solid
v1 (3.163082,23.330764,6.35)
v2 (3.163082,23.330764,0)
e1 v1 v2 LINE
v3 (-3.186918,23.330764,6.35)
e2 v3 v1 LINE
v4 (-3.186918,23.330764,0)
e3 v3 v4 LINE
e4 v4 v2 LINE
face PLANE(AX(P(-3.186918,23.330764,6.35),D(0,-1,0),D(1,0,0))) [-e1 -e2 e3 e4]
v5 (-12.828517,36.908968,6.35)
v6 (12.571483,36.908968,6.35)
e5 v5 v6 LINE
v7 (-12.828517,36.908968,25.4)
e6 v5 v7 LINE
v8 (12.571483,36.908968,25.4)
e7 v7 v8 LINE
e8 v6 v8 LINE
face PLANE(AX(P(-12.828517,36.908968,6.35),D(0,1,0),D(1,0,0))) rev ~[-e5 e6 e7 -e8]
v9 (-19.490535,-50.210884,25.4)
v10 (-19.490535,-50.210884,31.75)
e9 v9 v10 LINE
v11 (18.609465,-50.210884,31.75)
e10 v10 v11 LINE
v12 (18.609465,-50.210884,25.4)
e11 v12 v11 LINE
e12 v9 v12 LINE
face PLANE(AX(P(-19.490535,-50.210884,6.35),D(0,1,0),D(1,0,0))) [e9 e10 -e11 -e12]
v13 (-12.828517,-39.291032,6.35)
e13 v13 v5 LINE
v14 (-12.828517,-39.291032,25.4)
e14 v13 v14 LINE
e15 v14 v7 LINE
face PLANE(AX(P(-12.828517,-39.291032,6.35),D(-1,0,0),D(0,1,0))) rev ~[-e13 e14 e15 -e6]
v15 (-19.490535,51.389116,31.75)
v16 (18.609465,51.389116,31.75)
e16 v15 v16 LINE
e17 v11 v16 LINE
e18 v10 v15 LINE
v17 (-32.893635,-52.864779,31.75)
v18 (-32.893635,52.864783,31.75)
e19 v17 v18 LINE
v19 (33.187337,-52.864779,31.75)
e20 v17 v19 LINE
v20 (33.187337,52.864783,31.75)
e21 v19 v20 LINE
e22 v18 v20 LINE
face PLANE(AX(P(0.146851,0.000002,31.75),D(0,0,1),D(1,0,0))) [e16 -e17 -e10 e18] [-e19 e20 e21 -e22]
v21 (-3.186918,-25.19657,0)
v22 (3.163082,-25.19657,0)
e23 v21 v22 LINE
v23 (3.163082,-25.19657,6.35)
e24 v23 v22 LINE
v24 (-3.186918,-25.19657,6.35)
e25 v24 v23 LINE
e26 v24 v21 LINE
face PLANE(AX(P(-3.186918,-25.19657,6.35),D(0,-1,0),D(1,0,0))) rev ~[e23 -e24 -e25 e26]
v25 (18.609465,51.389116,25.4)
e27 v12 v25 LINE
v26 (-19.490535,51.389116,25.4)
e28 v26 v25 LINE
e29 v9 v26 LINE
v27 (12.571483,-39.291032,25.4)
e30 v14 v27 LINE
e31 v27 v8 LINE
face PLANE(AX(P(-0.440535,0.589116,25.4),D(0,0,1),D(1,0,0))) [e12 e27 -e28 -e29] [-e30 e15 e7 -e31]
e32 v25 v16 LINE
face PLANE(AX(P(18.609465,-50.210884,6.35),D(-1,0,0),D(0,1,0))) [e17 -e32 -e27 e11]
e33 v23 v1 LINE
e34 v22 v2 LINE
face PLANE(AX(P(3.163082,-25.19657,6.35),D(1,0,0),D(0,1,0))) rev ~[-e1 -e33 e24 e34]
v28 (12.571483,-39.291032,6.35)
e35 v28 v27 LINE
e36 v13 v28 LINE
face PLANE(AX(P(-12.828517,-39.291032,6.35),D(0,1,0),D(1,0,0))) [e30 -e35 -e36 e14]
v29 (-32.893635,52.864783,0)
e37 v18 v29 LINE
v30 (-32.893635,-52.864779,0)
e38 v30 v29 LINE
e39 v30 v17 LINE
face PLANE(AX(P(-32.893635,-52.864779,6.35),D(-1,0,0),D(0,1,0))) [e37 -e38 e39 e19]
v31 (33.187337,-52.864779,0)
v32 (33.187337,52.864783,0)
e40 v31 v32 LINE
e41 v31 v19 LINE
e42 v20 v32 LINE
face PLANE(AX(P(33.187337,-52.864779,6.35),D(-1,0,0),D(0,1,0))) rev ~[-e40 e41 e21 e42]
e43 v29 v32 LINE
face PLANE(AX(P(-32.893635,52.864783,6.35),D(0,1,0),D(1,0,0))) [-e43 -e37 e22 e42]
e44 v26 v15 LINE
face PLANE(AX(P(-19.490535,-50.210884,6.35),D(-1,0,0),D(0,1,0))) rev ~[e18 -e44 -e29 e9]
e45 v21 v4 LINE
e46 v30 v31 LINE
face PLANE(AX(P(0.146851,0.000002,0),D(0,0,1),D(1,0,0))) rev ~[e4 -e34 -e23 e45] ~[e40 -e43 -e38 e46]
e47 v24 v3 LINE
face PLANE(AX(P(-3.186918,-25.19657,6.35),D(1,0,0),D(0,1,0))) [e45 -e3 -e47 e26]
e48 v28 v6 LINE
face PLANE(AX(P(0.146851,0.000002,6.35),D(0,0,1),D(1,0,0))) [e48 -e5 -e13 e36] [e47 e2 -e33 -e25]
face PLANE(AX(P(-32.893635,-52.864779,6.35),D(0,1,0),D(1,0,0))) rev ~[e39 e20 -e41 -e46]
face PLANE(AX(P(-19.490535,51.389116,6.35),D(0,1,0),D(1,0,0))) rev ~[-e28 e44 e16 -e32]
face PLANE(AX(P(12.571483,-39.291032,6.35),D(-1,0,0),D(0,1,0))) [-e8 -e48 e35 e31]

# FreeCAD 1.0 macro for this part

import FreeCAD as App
import Part
import Sketcher
from FreeCAD import Vector
Q = App.Units.Quantity


def add_polygon(sketch, points):
    """Adds a closed chain of lines whose ends are joined by coincident constraints."""
    first, n = sketch.GeometryCount, len(points)
    for a, b in zip(points, points[1:] + points[:1]):
        sketch.addGeometry(Part.LineSegment(App.Vector(*a, 0), App.Vector(*b, 0)), False)
    for i in range(n):
        sketch.addConstraint(Sketcher.Constraint("Coincident", first + i, 2, first + (i + 1) % n, 1))

doc = App.newDocument("Part")
params = doc.addObject("Spreadsheet::Sheet", "Params")
for row, (alias, value) in enumerate([
    ("pad1_length", "0.25 in"),
    ("sketch2_height", "4 in"),
    ("sketch2_width", "1.5 in"),
    ("pad2_length", "1 in"),
    ("sketch3_width", "1 in"),
    ("sketch3_height", "4 in"),
    ("sketch3_height2", "3 in"),
    ("sketch3_width2", "1.5 in"),
    ("pad3_length", "0.75 in"),
    ("sketch4_width", "0.25 in"),
], start=1):
    params.set(f"A{row}", alias)
    params.set(f"B{row}", "=" + value)
    params.setAlias(f"B{row}", alias)

body = doc.addObject("PartDesign::Body", "Body")

# Sketch on XY plane
sketch1 = doc.addObject("Sketcher::SketchObject", "Sketch")
body.addObject(sketch1)
sketch1.AttachmentSupport = (doc.XY_Plane, [""])
sketch1.MapMode = "FlatFace"
add_polygon(sketch1, [(-33, 53), (-33, -53), (33, -53), (33, 53)])  # lines 0-3
sketch1.addConstraint([
    Sketcher.Constraint("Vertical", 0),
    Sketcher.Constraint("Horizontal", 1),
    Sketcher.Constraint("Vertical", 2),
    Sketcher.Constraint("Horizontal", 3),
    Sketcher.Constraint("DistanceY", 0, 2, 0, 1, 105.729562),
    Sketcher.Constraint("DistanceX", 1, 1, 1, 2, 66.080972),
    Sketcher.Constraint("DistanceY", 0, 2, -1, 1, 52.864779),
    Sketcher.Constraint("DistanceX", 0, 2, -1, 1, 32.893635),
])
pad1 = doc.addObject("PartDesign::Pad", "Pad")
body.addObject(pad1)
pad1.Profile = sketch1
pad1.setExpression("Length", "Params.pad1_length")

# Sketch on XY plane
sketch2 = doc.addObject("Sketcher::SketchObject", "Sketch001")
body.addObject(sketch2)
sketch2.AttachmentSupport = (doc.XY_Plane, [""])
sketch2.MapMode = "FlatFace"
sketch2.AttachmentOffset = App.Placement(Vector(0, 0, 0.25 * 25.4), App.Rotation())
add_polygon(sketch2, [(-33, 53), (-33, -53), (33, -53), (33, 53)])  # lines 0-3
add_polygon(sketch2, [(19, -50), (-19, -50), (-19, 51), (19, 51)])  # lines 4-7
sketch2.addConstraint([
    Sketcher.Constraint("Vertical", 0),
    Sketcher.Constraint("Horizontal", 1),
    Sketcher.Constraint("Vertical", 2),
    Sketcher.Constraint("Horizontal", 3),
    Sketcher.Constraint("Horizontal", 4),
    Sketcher.Constraint("Vertical", 5),
    Sketcher.Constraint("Horizontal", 6),
    Sketcher.Constraint("Vertical", 7),
    Sketcher.Constraint("DistanceY", 5, 1, 5, 2, Q("4 in")),
    Sketcher.Constraint("DistanceX", 4, 2, 4, 1, Q("1.5 in")),
    Sketcher.Constraint("DistanceY", 0, 2, 0, 1, 105.729562),
    Sketcher.Constraint("DistanceX", 0, 2, 4, 2, 13.4031),
    Sketcher.Constraint("DistanceX", 1, 1, 1, 2, 66.080972),
    Sketcher.Constraint("DistanceY", 0, 2, -1, 1, 52.864779),
    Sketcher.Constraint("DistanceX", 0, 2, -1, 1, 32.893635),
    Sketcher.Constraint("DistanceY", 4, 2, -1, 1, 50.210884),
])
sketch2.setExpression("Constraints[16]", "Params.sketch2_height")
sketch2.setExpression("Constraints[17]", "Params.sketch2_width")
pad2 = doc.addObject("PartDesign::Pad", "Pad001")
body.addObject(pad2)
pad2.Profile = sketch2
pad2.setExpression("Length", "Params.pad2_length")

# Sketch on XY plane
sketch3 = doc.addObject("Sketcher::SketchObject", "Sketch002")
body.addObject(sketch3)
sketch3.AttachmentSupport = (doc.XY_Plane, [""])
sketch3.MapMode = "FlatFace"
sketch3.AttachmentOffset = App.Placement(Vector(0, 0, 0.25 * 25.4), App.Rotation())
add_polygon(sketch3, [(-19, 51), (-19, -50), (19, -50), (19, 51)])  # lines 0-3
add_polygon(sketch3, [(13, -39), (-13, -39), (-13, 37), (13, 37)])  # lines 4-7
sketch3.addConstraint([
    Sketcher.Constraint("Vertical", 0),
    Sketcher.Constraint("Horizontal", 1),
    Sketcher.Constraint("Vertical", 2),
    Sketcher.Constraint("Horizontal", 3),
    Sketcher.Constraint("Horizontal", 4),
    Sketcher.Constraint("Vertical", 5),
    Sketcher.Constraint("Horizontal", 6),
    Sketcher.Constraint("Vertical", 7),
    Sketcher.Constraint("DistanceX", 4, 2, 4, 1, Q("1 in")),
    Sketcher.Constraint("DistanceY", 0, 2, 0, 1, Q("4 in")),
    Sketcher.Constraint("DistanceY", 5, 1, 5, 2, Q("3 in")),
    Sketcher.Constraint("DistanceX", 1, 1, 1, 2, Q("1.5 in")),
    Sketcher.Constraint("DistanceY", -1, 1, 5, 2, 36.908968),
    Sketcher.Constraint("DistanceX", 0, 2, 4, 2, 6.662018),
    Sketcher.Constraint("DistanceY", 0, 2, 4, 2, 10.919852),
    Sketcher.Constraint("DistanceX", 0, 2, -1, 1, 19.490535),
])
sketch3.setExpression("Constraints[16]", "Params.sketch3_width")
sketch3.setExpression("Constraints[17]", "Params.sketch3_height")
sketch3.setExpression("Constraints[18]", "Params.sketch3_height2")
sketch3.setExpression("Constraints[19]", "Params.sketch3_width2")
pad3 = doc.addObject("PartDesign::Pad", "Pad002")
body.addObject(pad3)
pad3.Profile = sketch3
pad3.setExpression("Length", "Params.pad3_length")

# Sketch on XY plane
sketch4 = doc.addObject("Sketcher::SketchObject", "Sketch003")
body.addObject(sketch4)
sketch4.AttachmentSupport = (doc.XY_Plane, [""])
sketch4.MapMode = "FlatFace"
sketch4.AttachmentOffset = App.Placement(Vector(0, 0, 0.25 * 25.4), App.Rotation())
add_polygon(sketch4, [(-3, 23), (-3, -25), (3, -25), (3, 23)])  # lines 0-3
sketch4.addConstraint([
    Sketcher.Constraint("Vertical", 0),
    Sketcher.Constraint("Horizontal", 1),
    Sketcher.Constraint("Vertical", 2),
    Sketcher.Constraint("Horizontal", 3),
    Sketcher.Constraint("DistanceX", 1, 1, 1, 2, Q("0.25 in")),
    Sketcher.Constraint("DistanceY", 0, 2, 0, 1, 48.527334),
    Sketcher.Constraint("DistanceY", 0, 2, -1, 1, 25.19657),
    Sketcher.Constraint("DistanceX", 0, 2, -1, 1, 3.186918),
])
sketch4.setExpression("Constraints[8]", "Params.sketch4_width")
pocket1 = doc.addObject("PartDesign::Pocket", "Pocket")
body.addObject(pocket1)
pocket1.Profile = sketch4
pocket1.Type = "ThroughAll"
pocket1.Midplane = True

doc.recompute()
